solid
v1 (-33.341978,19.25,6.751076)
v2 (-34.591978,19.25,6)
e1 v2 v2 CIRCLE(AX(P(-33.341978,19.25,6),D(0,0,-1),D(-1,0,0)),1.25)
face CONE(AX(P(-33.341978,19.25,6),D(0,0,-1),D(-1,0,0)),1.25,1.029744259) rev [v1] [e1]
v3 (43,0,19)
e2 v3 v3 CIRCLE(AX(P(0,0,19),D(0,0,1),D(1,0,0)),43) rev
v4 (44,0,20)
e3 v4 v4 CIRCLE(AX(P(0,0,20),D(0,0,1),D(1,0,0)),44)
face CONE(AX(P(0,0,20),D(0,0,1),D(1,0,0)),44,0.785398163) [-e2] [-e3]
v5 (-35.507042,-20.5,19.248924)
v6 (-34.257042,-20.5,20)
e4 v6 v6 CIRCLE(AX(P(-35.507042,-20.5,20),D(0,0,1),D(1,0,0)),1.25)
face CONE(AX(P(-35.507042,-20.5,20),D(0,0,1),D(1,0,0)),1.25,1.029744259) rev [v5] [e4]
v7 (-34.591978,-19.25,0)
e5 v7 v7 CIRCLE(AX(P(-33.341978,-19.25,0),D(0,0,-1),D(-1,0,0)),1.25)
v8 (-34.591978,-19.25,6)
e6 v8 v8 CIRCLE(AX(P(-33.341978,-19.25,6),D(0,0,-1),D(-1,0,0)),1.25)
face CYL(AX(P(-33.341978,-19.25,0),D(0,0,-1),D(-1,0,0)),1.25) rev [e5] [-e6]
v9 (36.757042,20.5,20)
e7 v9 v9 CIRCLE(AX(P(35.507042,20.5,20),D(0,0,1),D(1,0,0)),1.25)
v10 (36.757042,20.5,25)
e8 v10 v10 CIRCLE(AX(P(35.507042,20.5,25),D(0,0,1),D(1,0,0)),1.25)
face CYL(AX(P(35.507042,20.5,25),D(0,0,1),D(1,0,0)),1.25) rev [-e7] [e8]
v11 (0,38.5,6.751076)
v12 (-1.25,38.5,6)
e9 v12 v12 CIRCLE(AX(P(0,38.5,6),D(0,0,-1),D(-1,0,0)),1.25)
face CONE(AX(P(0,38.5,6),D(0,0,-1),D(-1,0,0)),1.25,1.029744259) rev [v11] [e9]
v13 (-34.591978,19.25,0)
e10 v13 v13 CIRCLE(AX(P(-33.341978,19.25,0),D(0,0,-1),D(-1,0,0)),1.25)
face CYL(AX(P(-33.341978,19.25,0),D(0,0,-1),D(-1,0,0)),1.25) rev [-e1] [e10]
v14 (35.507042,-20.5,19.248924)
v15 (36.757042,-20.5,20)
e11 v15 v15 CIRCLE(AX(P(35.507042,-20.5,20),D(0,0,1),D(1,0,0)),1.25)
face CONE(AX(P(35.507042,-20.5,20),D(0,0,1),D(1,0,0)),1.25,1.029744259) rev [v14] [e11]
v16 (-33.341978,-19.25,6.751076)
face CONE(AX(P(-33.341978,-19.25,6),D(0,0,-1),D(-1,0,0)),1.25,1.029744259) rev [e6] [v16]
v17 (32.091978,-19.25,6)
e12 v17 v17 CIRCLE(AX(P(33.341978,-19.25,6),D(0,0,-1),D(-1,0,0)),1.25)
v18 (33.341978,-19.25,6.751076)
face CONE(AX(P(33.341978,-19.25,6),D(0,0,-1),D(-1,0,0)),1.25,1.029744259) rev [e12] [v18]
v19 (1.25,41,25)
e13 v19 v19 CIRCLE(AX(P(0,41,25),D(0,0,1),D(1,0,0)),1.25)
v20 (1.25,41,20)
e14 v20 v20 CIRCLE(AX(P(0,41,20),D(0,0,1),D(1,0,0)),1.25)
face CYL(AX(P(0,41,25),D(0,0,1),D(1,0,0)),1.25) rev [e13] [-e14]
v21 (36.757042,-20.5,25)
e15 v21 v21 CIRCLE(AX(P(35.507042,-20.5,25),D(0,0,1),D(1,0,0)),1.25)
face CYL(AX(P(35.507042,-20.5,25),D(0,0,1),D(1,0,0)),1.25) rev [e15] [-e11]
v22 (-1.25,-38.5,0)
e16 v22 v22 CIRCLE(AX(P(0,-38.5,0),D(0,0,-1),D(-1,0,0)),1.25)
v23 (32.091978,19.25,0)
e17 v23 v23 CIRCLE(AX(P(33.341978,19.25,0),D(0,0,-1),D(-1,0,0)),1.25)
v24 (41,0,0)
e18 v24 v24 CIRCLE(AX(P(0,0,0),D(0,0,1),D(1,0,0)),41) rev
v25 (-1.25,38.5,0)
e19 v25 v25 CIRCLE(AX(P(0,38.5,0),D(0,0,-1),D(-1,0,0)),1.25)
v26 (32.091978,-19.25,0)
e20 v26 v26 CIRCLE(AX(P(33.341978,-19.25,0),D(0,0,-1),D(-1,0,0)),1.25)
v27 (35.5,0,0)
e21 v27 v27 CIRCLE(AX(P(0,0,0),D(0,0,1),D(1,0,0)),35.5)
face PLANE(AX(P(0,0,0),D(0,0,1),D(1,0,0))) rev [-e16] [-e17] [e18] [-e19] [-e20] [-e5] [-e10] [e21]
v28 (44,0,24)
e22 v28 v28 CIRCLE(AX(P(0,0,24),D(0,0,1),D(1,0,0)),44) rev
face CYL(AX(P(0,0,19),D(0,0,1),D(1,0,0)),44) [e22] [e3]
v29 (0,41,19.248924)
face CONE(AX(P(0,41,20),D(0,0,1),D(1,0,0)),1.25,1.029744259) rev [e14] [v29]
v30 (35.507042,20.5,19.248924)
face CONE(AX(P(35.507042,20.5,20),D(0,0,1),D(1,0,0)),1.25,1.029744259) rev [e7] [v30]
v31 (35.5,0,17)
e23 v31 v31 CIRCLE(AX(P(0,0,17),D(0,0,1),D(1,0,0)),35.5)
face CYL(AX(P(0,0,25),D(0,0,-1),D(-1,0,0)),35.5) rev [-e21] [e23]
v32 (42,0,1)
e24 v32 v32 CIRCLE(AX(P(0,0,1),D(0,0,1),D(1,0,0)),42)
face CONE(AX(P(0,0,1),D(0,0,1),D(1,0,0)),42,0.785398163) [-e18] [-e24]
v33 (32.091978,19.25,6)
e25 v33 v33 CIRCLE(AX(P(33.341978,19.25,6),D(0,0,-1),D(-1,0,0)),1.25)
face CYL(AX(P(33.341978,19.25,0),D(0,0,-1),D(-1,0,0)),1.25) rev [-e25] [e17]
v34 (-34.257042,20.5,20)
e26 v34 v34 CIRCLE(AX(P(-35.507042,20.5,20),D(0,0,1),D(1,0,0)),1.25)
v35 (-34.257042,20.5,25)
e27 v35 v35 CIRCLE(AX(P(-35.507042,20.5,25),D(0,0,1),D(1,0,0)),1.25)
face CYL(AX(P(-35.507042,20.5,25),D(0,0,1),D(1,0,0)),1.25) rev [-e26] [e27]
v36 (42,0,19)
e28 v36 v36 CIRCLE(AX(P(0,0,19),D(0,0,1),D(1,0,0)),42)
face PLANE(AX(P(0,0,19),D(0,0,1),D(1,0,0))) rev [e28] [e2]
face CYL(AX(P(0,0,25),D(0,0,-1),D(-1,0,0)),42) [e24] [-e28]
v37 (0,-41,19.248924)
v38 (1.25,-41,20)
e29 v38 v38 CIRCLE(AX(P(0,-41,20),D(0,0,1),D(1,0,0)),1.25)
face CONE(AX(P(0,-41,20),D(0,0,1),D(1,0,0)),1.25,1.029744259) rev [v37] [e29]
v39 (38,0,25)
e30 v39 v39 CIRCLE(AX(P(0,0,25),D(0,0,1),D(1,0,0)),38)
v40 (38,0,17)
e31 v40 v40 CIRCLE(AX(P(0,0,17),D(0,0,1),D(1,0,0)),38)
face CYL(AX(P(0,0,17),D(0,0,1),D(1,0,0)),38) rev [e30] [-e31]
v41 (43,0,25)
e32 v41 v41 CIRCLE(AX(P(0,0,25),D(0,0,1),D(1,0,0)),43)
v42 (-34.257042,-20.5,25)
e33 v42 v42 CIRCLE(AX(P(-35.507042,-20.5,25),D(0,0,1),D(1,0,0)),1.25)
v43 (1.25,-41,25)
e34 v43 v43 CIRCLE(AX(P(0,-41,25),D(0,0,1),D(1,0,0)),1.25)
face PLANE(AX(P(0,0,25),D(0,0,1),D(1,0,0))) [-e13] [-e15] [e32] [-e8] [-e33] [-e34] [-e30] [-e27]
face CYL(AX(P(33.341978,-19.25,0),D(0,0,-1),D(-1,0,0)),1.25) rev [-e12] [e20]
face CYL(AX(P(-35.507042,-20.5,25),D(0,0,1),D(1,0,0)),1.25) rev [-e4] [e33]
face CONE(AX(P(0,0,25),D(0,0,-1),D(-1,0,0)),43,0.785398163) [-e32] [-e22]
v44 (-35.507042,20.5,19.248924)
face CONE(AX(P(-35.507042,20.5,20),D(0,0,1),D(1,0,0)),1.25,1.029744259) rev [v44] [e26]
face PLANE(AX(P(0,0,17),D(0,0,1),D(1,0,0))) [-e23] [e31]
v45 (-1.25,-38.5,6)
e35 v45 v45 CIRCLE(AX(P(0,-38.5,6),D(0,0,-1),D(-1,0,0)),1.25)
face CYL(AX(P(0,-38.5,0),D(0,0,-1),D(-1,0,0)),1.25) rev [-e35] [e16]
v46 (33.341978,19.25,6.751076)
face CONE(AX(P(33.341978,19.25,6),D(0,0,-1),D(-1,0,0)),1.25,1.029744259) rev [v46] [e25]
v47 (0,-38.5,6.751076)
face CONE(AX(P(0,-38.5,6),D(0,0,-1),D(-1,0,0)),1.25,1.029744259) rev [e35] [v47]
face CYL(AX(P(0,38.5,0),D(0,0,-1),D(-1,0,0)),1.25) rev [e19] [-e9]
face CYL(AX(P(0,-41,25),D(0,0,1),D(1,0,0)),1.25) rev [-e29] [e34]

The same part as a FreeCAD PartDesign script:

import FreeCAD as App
import Part
import Sketcher

V = App.Vector
Q = App.Units.Quantity


def edges_at(feature, points):
    """Names of the edges that pass closest to the given points."""
    edges = feature.Shape.Edges
    near = lambda p: min(range(len(edges)), key=lambda i: edges[i].distToShape(Part.Vertex(*p))[0])
    return sorted({f"Edge{near(p) + 1}" for p in points})

doc = App.newDocument("Part")
body = doc.addObject("PartDesign::Body", "Body")

# Sketch on XY plane
sketch1 = doc.addObject("Sketcher::SketchObject", "Sketch")
body.addObject(sketch1)
sketch1.AttachmentSupport = (doc.XY_Plane, [""])
sketch1.MapMode = "FlatFace"
sketch1.addGeometry([
    Part.Circle(V(0, 0, 0), V(0, 0, 1), 42),
    Part.Circle(V(0, 0, 0), V(0, 0, 1), 36),
], False)
sketch1.addConstraint([
    Sketcher.Constraint("Coincident", 0, 3, -1, 1),
    Sketcher.Constraint("Coincident", 1, 3, -1, 1),
    Sketcher.Constraint("Diameter", 0, Q("84 mm")),
    Sketcher.Constraint("Diameter", 1, Q("71 mm")),
])
pad1 = doc.addObject("PartDesign::Pad", "Pad")
body.addObject(pad1)
pad1.Profile = sketch1
pad1.Length = 25

# Sketch on XY plane
sketch2 = doc.addObject("Sketcher::SketchObject", "Sketch001")
body.addObject(sketch2)
sketch2.AttachmentSupport = (doc.XY_Plane, [""])
sketch2.MapMode = "FlatFace"
sketch2.AttachmentOffset = App.Placement(V(0, 0, 25), App.Rotation())
sketch2.addGeometry(Part.Circle(V(0, 0, 0), V(0, 0, 1), 38), False)
sketch2.addConstraint([
    Sketcher.Constraint("Coincident", 0, 3, -1, 1),
    Sketcher.Constraint("Diameter", 0, Q("76 mm")),
])
pocket1 = doc.addObject("PartDesign::Pocket", "Pocket")
body.addObject(pocket1)
pocket1.Profile = sketch2
pocket1.Length = 8

# Sketch on XY plane
sketch3 = doc.addObject("Sketcher::SketchObject", "Sketch002")
body.addObject(sketch3)
sketch3.AttachmentSupport = (doc.XY_Plane, [""])
sketch3.MapMode = "FlatFace"
sketch3.addGeometry([
    Part.Circle(V(-33.3, 19.2, 0), V(0, 0, 1), 1.2),  # 0
    Part.Circle(V(-33.3, -19.2, 0), V(0, 0, 1), 1.2),  # 1
    Part.Circle(V(0, -38.5, 0), V(0, 0, 1), 1.2),  # 2
    Part.Circle(V(33.3, -19.2, 0), V(0, 0, 1), 1.2),  # 3
    Part.Circle(V(33.3, 19.2, 0), V(0, 0, 1), 1.2),  # 4
    Part.Circle(V(0, 38.5, 0), V(0, 0, 1), 1.2),  # 5
], False)
sketch3.addConstraint([
    Sketcher.Constraint("Equal", 0, 1),
    Sketcher.Constraint("Equal", 1, 2),
    Sketcher.Constraint("Equal", 2, 3),
    Sketcher.Constraint("Equal", 3, 4),
    Sketcher.Constraint("Equal", 4, 5),
    Sketcher.Constraint("Symmetric", 0, 3, 3, 3, -1, 1),
    Sketcher.Constraint("Symmetric", 1, 3, 4, 3, -1, 1),
    Sketcher.Constraint("Symmetric", 2, 3, 5, 3, -1, 1),
    Sketcher.Constraint("Symmetric", 1, 3, 3, 3, -2),
    Sketcher.Constraint("PointOnObject", 2, 3, -2),
    Sketcher.Constraint("Diameter", 0, Q("2.5 mm")),
    Sketcher.Constraint("DistanceY", 2, 3, 5, 3, Q("77 mm")),
    Sketcher.Constraint("DistanceY", 1, 3, 0, 3, Q("38.5 mm")),
    Sketcher.Constraint("DistanceX", 0, 3, -1, 1, Q("33.341978 mm")),
])
doc.recompute()
hole = doc.addObject("PartDesign::Hole", "Hole")
body.addObject(hole)
hole.Profile = sketch3
hole.ThreadType = "None"
hole.Diameter = 2.5
hole.DepthType = "Dimension"
hole.Depth = 6
hole.DrillPoint = "Angled"
hole.DrillPointAngle = 118
hole.Reversed = True

# Sketch on XY plane
sketch4 = doc.addObject("Sketcher::SketchObject", "Sketch003")
body.addObject(sketch4)
sketch4.AttachmentSupport = (doc.XY_Plane, [""])
sketch4.MapMode = "FlatFace"
sketch4.AttachmentOffset = App.Placement(V(0, 0, 25), App.Rotation())
sketch4.addGeometry([
    Part.Circle(V(0, 0, 0), V(0, 0, 1), 44),
    Part.Circle(V(0, 0, 0), V(0, 0, 1), 42),
], False)
sketch4.addConstraint([
    Sketcher.Constraint("Coincident", 0, 3, -1, 1),
    Sketcher.Constraint("Coincident", 1, 3, -1, 1),
    Sketcher.Constraint("Diameter", 0, Q("88 mm")),
    Sketcher.Constraint("Diameter", 1, Q("84 mm")),
])
pad2 = doc.addObject("PartDesign::Pad", "Pad001")
body.addObject(pad2)
pad2.Profile = sketch4
pad2.Length = 6
pad2.Reversed = True
doc.recompute()

chamfer = doc.addObject("PartDesign::Chamfer", "Chamfer")
body.addObject(chamfer)
chamfer.Base = (pad2, edges_at(pad2, [(-42, 0, 0)]))
chamfer.Size = 1

# Sketch on XY plane
sketch5 = doc.addObject("Sketcher::SketchObject", "Sketch004")
body.addObject(sketch5)
sketch5.AttachmentSupport = (doc.XY_Plane, [""])
sketch5.MapMode = "FlatFace"
sketch5.AttachmentOffset = App.Placement(V(0, 0, 25), App.Rotation())
sketch5.addGeometry([
    Part.Circle(V(35.5, 20.5, 0), V(0, 0, 1), 1.2),  # 0
    Part.Circle(V(35.5, -20.5, 0), V(0, 0, 1), 1.2),  # 1
    Part.Circle(V(0, 41, 0), V(0, 0, 1), 1.2),  # 2
    Part.Circle(V(0, -41, 0), V(0, 0, 1), 1.2),  # 3
    Part.Circle(V(-35.5, -20.5, 0), V(0, 0, 1), 1.2),  # 4
    Part.Circle(V(-35.5, 20.5, 0), V(0, 0, 1), 1.2),  # 5
], False)
sketch5.addConstraint([
    Sketcher.Constraint("Equal", 0, 1),
    Sketcher.Constraint("Equal", 1, 2),
    Sketcher.Constraint("Equal", 2, 3),
    Sketcher.Constraint("Equal", 3, 4),
    Sketcher.Constraint("Equal", 4, 5),
    Sketcher.Constraint("Symmetric", 2, 3, 3, 3, -1, 1),
    Sketcher.Constraint("Symmetric", 0, 3, 4, 3, -1, 1),
    Sketcher.Constraint("Symmetric", 1, 3, 5, 3, -1, 1),
    Sketcher.Constraint("Symmetric", 1, 3, 4, 3, -2),
    Sketcher.Constraint("PointOnObject", 2, 3, -2),
    Sketcher.Constraint("Diameter", 0, Q("2.5 mm")),
    Sketcher.Constraint("DistanceY", -1, 1, 2, 3, Q("41 mm")),
    Sketcher.Constraint("DistanceY", 1, 3, 0, 3, Q("41 mm")),
    Sketcher.Constraint("DistanceX", -1, 1, 0, 3, Q("35.507042 mm")),
])
doc.recompute()
hole2 = doc.addObject("PartDesign::Hole", "Hole001")
body.addObject(hole2)
hole2.Profile = sketch5
hole2.ThreadType = "None"
hole2.Diameter = 2.5
hole2.DepthType = "Dimension"
hole2.Depth = 5
hole2.DrillPoint = "Angled"
hole2.DrillPointAngle = 118

# Sketch on XY plane
sketch6 = doc.addObject("Sketcher::SketchObject", "Sketch005")
body.addObject(sketch6)
sketch6.AttachmentSupport = (doc.XY_Plane, [""])
sketch6.MapMode = "FlatFace"
sketch6.addGeometry(Part.Circle(V(84.6, -20.5, 0), V(0, 0, 1), 1.2), False)
sketch6.addConstraint([
    Sketcher.Constraint("Diameter", 0, Q("2.5 mm")),
    Sketcher.Constraint("DistanceX", -1, 1, 0, 3, Q("84.616598 mm")),
    Sketcher.Constraint("DistanceY", 0, 3, -1, 1, Q("20.470459 mm")),
])
doc.recompute()
hole3 = doc.addObject("PartDesign::Hole", "Hole002")
body.addObject(hole3)
hole3.Profile = sketch6
hole3.ThreadType = "None"
hole3.Diameter = 2.5
hole3.DepthType = "Dimension"
hole3.Depth = 5
hole3.DrillPoint = "Angled"
hole3.DrillPointAngle = 118
doc.recompute()

chamfer2 = doc.addObject("PartDesign::Chamfer", "Chamfer001")
body.addObject(chamfer2)
chamfer2.Base = (hole3, edges_at(hole3, [(-44, 0, 19), (-44, 0, 25)]))
chamfer2.Size = 1

doc.recompute()
